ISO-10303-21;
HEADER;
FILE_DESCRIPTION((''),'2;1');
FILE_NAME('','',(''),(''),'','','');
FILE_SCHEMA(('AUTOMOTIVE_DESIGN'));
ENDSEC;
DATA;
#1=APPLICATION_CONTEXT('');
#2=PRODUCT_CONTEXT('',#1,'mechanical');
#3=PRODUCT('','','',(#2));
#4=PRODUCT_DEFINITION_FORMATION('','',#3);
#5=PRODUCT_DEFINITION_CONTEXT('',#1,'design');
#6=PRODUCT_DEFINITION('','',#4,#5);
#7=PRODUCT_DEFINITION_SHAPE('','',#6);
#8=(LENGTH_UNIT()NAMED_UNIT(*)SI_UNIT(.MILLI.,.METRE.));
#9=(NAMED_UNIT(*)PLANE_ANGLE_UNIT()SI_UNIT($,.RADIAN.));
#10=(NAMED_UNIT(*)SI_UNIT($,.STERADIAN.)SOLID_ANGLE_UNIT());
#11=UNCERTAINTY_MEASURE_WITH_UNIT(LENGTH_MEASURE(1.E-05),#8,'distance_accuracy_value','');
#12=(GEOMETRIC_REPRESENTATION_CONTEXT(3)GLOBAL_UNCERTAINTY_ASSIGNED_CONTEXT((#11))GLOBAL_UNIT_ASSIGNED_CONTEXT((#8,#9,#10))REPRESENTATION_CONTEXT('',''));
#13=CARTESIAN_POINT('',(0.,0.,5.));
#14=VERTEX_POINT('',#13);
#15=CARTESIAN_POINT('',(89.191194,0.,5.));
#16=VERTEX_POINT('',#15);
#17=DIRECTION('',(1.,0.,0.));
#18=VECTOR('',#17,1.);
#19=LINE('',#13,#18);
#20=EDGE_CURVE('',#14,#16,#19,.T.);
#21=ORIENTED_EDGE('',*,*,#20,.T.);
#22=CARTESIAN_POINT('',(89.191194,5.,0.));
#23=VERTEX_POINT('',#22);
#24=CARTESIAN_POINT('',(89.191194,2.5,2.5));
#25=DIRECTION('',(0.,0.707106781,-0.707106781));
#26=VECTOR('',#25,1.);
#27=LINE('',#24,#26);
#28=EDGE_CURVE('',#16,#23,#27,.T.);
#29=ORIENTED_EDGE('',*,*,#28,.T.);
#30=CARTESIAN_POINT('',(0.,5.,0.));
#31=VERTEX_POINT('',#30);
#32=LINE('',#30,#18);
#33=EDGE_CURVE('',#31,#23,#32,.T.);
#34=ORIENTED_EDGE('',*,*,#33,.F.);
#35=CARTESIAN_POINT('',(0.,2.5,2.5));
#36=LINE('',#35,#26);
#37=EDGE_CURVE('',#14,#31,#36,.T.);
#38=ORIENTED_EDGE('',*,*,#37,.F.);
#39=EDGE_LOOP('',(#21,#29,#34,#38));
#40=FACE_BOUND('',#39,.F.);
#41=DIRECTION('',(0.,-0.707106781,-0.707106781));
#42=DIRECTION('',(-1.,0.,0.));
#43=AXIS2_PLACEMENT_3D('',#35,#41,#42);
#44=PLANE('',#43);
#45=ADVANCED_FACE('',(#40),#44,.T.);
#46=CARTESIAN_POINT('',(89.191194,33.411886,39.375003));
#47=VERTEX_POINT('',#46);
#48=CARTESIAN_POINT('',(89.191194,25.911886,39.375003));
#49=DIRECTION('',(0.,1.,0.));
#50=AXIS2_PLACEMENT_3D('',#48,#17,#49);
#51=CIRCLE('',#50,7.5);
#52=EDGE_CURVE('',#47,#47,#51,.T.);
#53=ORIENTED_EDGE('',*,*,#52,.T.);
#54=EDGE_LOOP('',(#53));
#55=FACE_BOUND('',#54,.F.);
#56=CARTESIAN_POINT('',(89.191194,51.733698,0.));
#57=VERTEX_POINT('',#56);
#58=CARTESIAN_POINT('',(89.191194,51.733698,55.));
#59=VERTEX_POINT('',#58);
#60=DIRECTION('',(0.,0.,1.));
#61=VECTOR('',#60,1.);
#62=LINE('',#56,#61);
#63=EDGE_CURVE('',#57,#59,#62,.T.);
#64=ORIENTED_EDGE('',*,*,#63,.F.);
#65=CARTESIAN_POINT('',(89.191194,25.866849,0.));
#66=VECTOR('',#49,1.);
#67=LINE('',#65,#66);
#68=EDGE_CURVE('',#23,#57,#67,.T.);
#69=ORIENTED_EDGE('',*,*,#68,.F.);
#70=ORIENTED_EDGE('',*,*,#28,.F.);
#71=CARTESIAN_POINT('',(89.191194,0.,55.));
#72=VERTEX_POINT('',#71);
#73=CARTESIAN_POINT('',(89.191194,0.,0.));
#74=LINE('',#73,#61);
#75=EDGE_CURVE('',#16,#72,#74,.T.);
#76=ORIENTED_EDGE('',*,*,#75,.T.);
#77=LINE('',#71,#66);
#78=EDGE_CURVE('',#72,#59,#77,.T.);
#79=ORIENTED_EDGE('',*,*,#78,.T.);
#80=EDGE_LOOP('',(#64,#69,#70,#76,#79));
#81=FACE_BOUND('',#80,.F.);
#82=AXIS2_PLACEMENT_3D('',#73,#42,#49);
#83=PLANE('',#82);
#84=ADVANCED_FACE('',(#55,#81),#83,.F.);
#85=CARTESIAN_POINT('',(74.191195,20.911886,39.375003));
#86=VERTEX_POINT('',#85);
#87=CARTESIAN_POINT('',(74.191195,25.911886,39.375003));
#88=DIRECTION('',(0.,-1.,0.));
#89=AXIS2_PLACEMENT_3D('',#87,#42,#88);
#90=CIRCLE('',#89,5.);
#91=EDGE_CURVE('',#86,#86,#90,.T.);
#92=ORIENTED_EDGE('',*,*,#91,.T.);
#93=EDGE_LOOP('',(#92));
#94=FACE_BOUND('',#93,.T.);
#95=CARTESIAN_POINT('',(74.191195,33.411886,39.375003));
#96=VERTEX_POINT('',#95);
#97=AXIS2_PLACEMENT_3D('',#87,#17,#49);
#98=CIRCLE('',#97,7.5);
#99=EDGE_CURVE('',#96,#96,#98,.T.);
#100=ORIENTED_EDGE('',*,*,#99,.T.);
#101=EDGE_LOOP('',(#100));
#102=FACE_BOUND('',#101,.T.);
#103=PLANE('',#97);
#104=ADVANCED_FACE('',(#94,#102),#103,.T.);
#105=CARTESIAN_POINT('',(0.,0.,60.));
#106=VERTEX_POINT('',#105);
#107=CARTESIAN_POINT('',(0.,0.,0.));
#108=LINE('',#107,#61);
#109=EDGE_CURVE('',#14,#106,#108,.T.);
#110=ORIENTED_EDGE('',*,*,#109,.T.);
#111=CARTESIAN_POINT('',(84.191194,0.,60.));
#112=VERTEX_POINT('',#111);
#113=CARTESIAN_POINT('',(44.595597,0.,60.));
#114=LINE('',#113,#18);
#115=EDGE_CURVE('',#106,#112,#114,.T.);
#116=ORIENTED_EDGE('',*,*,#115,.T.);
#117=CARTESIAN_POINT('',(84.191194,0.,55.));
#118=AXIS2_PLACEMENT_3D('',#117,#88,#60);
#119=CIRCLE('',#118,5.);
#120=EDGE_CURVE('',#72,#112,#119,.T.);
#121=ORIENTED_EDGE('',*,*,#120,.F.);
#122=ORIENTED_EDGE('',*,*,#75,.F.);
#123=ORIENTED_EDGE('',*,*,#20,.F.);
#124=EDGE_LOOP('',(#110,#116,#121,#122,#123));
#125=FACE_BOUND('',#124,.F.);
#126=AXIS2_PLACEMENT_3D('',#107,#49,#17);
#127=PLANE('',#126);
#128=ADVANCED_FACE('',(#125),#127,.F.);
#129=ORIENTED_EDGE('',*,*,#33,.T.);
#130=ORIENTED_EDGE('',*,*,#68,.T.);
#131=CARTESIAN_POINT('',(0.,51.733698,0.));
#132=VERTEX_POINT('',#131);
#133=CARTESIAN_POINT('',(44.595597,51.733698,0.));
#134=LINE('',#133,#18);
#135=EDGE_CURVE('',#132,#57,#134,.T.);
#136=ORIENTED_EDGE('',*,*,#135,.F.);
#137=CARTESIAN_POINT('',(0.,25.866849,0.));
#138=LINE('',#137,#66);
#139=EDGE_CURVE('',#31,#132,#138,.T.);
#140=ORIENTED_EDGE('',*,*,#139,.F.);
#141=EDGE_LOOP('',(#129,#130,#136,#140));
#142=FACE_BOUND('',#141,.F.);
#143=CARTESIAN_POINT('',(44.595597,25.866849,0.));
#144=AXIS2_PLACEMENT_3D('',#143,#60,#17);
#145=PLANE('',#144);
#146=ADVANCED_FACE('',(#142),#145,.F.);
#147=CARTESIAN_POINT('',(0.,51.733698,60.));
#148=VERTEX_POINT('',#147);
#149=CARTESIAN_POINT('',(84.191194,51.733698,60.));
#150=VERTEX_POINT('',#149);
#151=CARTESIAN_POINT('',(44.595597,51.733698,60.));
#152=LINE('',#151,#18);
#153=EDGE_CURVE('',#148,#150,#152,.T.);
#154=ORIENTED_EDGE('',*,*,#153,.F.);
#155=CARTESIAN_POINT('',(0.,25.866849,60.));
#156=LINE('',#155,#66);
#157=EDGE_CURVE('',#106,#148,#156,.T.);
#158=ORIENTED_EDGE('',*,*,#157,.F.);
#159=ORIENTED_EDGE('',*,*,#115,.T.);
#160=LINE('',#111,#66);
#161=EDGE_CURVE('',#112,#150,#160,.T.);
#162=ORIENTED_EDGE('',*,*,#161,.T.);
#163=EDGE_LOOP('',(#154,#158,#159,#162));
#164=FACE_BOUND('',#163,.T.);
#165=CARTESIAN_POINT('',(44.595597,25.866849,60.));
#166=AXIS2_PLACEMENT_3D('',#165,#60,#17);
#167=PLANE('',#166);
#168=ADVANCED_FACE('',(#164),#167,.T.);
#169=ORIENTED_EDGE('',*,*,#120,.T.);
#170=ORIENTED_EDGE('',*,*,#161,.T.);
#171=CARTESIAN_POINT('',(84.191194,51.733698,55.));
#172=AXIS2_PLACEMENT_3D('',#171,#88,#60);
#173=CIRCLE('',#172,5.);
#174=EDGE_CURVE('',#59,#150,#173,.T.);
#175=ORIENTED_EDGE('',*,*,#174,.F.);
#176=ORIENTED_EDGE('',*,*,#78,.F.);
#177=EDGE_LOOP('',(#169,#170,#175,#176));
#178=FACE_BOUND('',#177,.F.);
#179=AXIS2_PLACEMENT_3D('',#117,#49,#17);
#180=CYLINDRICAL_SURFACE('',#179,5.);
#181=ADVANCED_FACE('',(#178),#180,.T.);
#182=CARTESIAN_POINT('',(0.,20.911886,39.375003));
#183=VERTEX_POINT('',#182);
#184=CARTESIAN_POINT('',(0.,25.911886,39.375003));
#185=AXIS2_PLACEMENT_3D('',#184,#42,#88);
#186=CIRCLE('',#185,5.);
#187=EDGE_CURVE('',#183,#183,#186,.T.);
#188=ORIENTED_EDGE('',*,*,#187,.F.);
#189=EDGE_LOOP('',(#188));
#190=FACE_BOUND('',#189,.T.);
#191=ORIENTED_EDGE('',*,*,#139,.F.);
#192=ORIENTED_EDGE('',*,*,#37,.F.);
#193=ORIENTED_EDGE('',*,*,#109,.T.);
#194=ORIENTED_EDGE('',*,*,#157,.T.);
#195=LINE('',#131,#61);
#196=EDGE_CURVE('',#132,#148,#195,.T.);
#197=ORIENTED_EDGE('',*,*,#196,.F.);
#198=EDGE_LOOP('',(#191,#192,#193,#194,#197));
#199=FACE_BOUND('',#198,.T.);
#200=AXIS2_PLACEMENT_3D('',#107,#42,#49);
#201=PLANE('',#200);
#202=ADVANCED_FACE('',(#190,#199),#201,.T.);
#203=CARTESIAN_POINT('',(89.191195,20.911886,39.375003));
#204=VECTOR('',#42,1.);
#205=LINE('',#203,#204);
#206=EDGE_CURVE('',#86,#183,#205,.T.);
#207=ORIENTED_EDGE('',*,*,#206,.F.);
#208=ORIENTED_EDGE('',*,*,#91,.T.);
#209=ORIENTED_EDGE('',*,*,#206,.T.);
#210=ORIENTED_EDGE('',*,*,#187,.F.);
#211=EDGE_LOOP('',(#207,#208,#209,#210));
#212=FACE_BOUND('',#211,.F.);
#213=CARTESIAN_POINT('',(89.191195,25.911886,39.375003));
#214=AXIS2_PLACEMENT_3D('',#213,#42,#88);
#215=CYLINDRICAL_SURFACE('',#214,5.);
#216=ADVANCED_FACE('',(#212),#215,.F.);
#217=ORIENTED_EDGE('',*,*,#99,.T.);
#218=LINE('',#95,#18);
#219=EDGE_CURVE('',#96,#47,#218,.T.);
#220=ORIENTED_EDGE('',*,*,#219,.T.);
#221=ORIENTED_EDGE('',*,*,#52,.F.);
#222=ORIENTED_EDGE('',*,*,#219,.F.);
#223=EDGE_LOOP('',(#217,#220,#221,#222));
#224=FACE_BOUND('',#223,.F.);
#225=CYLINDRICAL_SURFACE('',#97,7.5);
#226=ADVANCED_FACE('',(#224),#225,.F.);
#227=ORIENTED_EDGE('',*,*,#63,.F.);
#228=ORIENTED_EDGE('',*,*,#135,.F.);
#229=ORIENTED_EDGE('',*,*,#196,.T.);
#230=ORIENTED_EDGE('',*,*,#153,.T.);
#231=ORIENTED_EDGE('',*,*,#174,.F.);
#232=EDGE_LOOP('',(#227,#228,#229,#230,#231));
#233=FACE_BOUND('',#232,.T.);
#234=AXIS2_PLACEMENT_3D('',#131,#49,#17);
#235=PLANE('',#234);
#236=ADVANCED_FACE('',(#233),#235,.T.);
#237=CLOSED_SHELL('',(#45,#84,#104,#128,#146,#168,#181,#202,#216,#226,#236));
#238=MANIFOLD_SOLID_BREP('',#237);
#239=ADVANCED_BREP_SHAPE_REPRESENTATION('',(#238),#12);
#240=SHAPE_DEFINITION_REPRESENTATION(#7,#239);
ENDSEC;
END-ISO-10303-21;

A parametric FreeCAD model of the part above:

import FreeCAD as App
import Part
import Sketcher
from FreeCAD import Vector


def edges_at(feature, points):
    """Names of the edges that pass closest to the given points."""
    edges = feature.Shape.Edges
    near = lambda p: min(range(len(edges)), key=lambda i: edges[i].distToShape(Part.Vertex(*p))[0])
    return sorted({f"Edge{near(p) + 1}" for p in points})


def add_polygon(sketch, points):
    """Adds a closed chain of lines whose ends are joined by coincident constraints."""
    first, n = sketch.GeometryCount, len(points)
    for a, b in zip(points, points[1:] + points[:1]):
        sketch.addGeometry(Part.LineSegment(App.Vector(*a, 0), App.Vector(*b, 0)), False)
    for i in range(n):
        sketch.addConstraint(Sketcher.Constraint("Coincident", first + i, 2, first + (i + 1) % n, 1))

doc = App.newDocument("Part")
body = doc.addObject("PartDesign::Body", "Body")

# Sketch on XY plane
sketch1 = doc.addObject("Sketcher::SketchObject", "Sketch")
body.addObject(sketch1)
sketch1.AttachmentSupport = (doc.XY_Plane, [""])
sketch1.MapMode = "FlatFace"
add_polygon(sketch1, [(0, 52), (0, 0), (89, 0), (89, 52)])  # lines 0-3
sketch1.addConstraint(Sketcher.Constraint("Vertical", 0))
sketch1.addConstraint(Sketcher.Constraint("Horizontal", 1))
sketch1.addConstraint(Sketcher.Constraint("Vertical", 2))
sketch1.addConstraint(Sketcher.Constraint("Horizontal", 3))
sketch1.addConstraint(Sketcher.Constraint("Coincident", 0, 2, -1, 1))
sketch1.addConstraint(Sketcher.Constraint("DistanceX", 1, 1, 1, 2, 89.191195))
sketch1.addConstraint(Sketcher.Constraint("DistanceY", 0, 2, 0, 1, 51.733698))
pad1 = doc.addObject("PartDesign::Pad", "Pad")
body.addObject(pad1)
pad1.Profile = sketch1
pad1.Length = 60
doc.recompute()

fillet = doc.addObject("PartDesign::Fillet", "Fillet")
body.addObject(fillet)
fillet.Base = (pad1, edges_at(pad1, [(89.191, 25.867, 60)]))
fillet.Radius = 5
doc.recompute()

chamfer = doc.addObject("PartDesign::Chamfer", "Chamfer")
body.addObject(chamfer)
chamfer.Base = (fillet, edges_at(fillet, [(44.596, 0, 0)]))
chamfer.Size = 5

# Sketch on YZ plane
sketch2 = doc.addObject("Sketcher::SketchObject", "Sketch001")
body.addObject(sketch2)
sketch2.AttachmentSupport = (doc.YZ_Plane, [""])
sketch2.MapMode = "FlatFace"
sketch2.AttachmentOffset = App.Placement(Vector(0, 0, 89.191195), App.Rotation())
sketch2.addGeometry(Part.Circle(Vector(26, 39, 0), Vector(0, 0, 1), 5), False)
sketch2.addConstraint(Sketcher.Constraint("Diameter", 0, 10.0))
sketch2.addConstraint(Sketcher.Constraint("DistanceX", -1, 1, 0, 3, 25.911886))
sketch2.addConstraint(Sketcher.Constraint("DistanceY", -1, 1, 0, 3, 39.375003))
doc.recompute()
hole = doc.addObject("PartDesign::Hole", "Hole")
body.addObject(hole)
hole.Profile = sketch2
hole.ThreadType = "None"
hole.Diameter = 10
hole.DepthType = "ThroughAll"
hole.HoleCutType = "Counterbore"
hole.HoleCutDiameter = 15
hole.HoleCutDepth = 15

doc.recompute()
